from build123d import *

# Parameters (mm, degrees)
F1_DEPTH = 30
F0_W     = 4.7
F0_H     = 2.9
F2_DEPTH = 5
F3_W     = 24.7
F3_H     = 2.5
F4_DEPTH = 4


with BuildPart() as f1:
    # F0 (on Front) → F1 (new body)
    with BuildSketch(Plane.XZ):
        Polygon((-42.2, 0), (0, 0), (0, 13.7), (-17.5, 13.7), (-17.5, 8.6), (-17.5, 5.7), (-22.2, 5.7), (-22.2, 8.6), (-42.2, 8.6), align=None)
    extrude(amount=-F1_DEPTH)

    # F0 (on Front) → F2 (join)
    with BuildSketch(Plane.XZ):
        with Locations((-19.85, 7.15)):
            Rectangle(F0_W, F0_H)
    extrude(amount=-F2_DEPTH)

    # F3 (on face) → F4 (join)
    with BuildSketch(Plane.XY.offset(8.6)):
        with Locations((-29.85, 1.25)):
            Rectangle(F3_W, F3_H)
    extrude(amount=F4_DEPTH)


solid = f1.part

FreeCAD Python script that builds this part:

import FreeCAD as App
import Part
import Sketcher

V = App.Vector
Q = App.Units.Quantity


def add_polygon(sketch, points):
    """Adds a closed chain of lines whose ends are joined by coincident constraints."""
    first, n = sketch.GeometryCount, len(points)
    for a, b in zip(points, points[1:] + points[:1]):
        sketch.addGeometry(Part.LineSegment(App.Vector(*a, 0), App.Vector(*b, 0)), False)
    for i in range(n):
        sketch.addConstraint(Sketcher.Constraint("Coincident", first + i, 2, first + (i + 1) % n, 1))

doc = App.newDocument("Part")
body = doc.addObject("PartDesign::Body", "Body")

sketch1 = doc.addObject("Sketcher::SketchObject", "Sketch")
body.addObject(sketch1)
sketch1.AttachmentSupport = (doc.XZ_Plane, [""])
sketch1.MapMode = "FlatFace"
add_polygon(sketch1, [(-42.2, 0), (0, 0), (0, 13.7), (-17.5, 13.7), (-17.5, 5.7), (-22.2, 5.7), (-22.2, 8.6), (-42.2, 8.6)])
sketch1.addConstraint([
    Sketcher.Constraint("Horizontal", 0),
    Sketcher.Constraint("Vertical", 1),
    Sketcher.Constraint("Horizontal", 2),
    Sketcher.Constraint("Vertical", 3),
    Sketcher.Constraint("Horizontal", 4),
    Sketcher.Constraint("Vertical", 5),
    Sketcher.Constraint("Horizontal", 6),
    Sketcher.Constraint("Vertical", 7),
    Sketcher.Constraint("Coincident", 0, 2, -1, 1),
    Sketcher.Constraint("DistanceX", 6, 2, 6, 1, Q("20 mm")),
    Sketcher.Constraint("DistanceY", 3, 2, 3, 1, Q("8 mm")),
    Sketcher.Constraint("DistanceX", 0, 1, 0, 2, Q("42.2 mm")),
    Sketcher.Constraint("DistanceX", 2, 2, 2, 1, Q("17.5 mm")),
    Sketcher.Constraint("DistanceY", 1, 1, 1, 2, Q("13.7 mm")),
    Sketcher.Constraint("DistanceY", 5, 1, 5, 2, Q("2.9 mm")),
])
pad1 = doc.addObject("PartDesign::Pad", "Pad")
body.addObject(pad1)
pad1.Profile = sketch1
pad1.Length = 30
pad1.Reversed = True

sketch2 = doc.addObject("Sketcher::SketchObject", "Sketch001")
body.addObject(sketch2)
sketch2.AttachmentSupport = (doc.XZ_Plane, [""])
sketch2.MapMode = "FlatFace"
add_polygon(sketch2, [(-22.2, 8.6), (-22.2, 5.7), (-17.5, 5.7), (-17.5, 8.6)])
sketch2.addConstraint([
    Sketcher.Constraint("Vertical", 0),
    Sketcher.Constraint("Horizontal", 1),
    Sketcher.Constraint("Vertical", 2),
    Sketcher.Constraint("Horizontal", 3),
    Sketcher.Constraint("DistanceX", 1, 1, 1, 2, Q("4.7 mm")),
    Sketcher.Constraint("DistanceY", 0, 2, 0, 1, Q("2.9 mm")),
    Sketcher.Constraint("DistanceX", 0, 2, -1, 1, Q("22.2 mm")),
    Sketcher.Constraint("DistanceY", -1, 1, 0, 2, Q("5.7 mm")),
])
pad2 = doc.addObject("PartDesign::Pad", "Pad001")
body.addObject(pad2)
pad2.Profile = sketch2
pad2.Length = 5
pad2.Reversed = True

sketch3 = doc.addObject("Sketcher::SketchObject", "Sketch002")
body.addObject(sketch3)
sketch3.AttachmentSupport = (doc.XY_Plane, [""])
sketch3.MapMode = "FlatFace"
sketch3.AttachmentOffset = App.Placement(V(0, 0, 8.6), App.Rotation())
add_polygon(sketch3, [(-42.2, 2.5), (-42.2, 0), (-17.5, 0), (-17.5, 2.5)])
sketch3.addConstraint([
    Sketcher.Constraint("Vertical", 0),
    Sketcher.Constraint("Horizontal", 1),
    Sketcher.Constraint("Vertical", 2),
    Sketcher.Constraint("Horizontal", 3),
    Sketcher.Constraint("PointOnObject", 0, 2, -1),
    Sketcher.Constraint("DistanceX", 1, 1, 1, 2, Q("24.7 mm")),
    Sketcher.Constraint("DistanceY", 0, 2, 0, 1, Q("2.5 mm")),
    Sketcher.Constraint("DistanceX", 0, 2, -1, 1, Q("42.2 mm")),
])
pad3 = doc.addObject("PartDesign::Pad", "Pad002")
body.addObject(pad3)
pad3.Profile = sketch3
pad3.Length = 4

doc.recompute()
